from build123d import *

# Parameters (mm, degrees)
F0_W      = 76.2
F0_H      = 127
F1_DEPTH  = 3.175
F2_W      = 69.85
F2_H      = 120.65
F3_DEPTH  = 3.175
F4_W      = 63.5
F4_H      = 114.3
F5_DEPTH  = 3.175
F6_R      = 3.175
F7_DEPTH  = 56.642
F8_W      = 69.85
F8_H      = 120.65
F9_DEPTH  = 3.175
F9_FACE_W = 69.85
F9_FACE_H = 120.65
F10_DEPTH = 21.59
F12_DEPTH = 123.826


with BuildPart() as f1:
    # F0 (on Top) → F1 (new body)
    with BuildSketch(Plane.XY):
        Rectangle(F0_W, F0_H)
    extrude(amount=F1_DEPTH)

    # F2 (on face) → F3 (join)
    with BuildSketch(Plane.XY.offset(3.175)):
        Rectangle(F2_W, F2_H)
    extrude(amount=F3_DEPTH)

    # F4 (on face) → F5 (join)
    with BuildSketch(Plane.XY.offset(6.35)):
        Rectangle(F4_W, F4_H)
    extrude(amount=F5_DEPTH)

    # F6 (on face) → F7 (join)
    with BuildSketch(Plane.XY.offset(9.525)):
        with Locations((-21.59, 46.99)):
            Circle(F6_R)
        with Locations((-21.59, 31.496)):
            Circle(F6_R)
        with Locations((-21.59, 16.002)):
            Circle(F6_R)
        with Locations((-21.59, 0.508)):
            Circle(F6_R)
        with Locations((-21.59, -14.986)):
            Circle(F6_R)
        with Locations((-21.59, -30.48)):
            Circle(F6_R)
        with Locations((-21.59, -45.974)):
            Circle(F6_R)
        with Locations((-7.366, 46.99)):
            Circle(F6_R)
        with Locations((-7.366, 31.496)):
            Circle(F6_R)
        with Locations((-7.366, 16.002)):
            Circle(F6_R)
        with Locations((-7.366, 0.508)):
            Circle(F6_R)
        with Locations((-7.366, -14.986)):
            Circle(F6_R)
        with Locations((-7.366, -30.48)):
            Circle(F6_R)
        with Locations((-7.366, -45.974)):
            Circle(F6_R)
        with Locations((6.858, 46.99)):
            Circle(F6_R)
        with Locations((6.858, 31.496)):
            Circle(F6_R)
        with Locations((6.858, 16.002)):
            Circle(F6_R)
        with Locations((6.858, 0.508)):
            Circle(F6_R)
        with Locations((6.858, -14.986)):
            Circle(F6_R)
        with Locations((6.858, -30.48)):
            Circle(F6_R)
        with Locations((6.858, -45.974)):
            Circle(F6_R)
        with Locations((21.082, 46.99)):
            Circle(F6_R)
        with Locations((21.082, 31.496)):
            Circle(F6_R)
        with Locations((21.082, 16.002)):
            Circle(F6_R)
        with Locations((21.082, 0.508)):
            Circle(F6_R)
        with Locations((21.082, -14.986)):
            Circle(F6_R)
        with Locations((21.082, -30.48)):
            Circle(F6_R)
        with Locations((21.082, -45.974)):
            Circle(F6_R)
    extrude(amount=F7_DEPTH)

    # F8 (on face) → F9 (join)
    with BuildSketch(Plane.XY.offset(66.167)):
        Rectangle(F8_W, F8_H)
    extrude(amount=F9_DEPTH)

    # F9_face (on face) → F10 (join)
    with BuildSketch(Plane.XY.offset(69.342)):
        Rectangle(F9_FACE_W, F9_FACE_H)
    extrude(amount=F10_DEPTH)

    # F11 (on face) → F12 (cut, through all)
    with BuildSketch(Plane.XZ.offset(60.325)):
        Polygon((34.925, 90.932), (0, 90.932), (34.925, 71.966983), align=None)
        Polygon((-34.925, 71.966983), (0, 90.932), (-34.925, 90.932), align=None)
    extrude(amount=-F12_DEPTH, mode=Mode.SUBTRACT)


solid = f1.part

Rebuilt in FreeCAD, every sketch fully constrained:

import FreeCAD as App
import Part
import Sketcher

V = App.Vector
Q = App.Units.Quantity


def add_polygon(sketch, points):
    """Adds a closed chain of lines whose ends are joined by coincident constraints."""
    first, n = sketch.GeometryCount, len(points)
    for a, b in zip(points, points[1:] + points[:1]):
        sketch.addGeometry(Part.LineSegment(App.Vector(*a, 0), App.Vector(*b, 0)), False)
    for i in range(n):
        sketch.addConstraint(Sketcher.Constraint("Coincident", first + i, 2, first + (i + 1) % n, 1))

doc = App.newDocument("Part")
body = doc.addObject("PartDesign::Body", "Body")

sketch1 = body.newObject("Sketcher::SketchObject", "Sketch")
sketch1.AttachmentSupport = (doc.getObject("XY_Plane"), [""])
sketch1.MapMode = "FlatFace"
add_polygon(sketch1, [(-38.1, 63.5), (-38.1, -63.5), (38.1, -63.5), (38.1, 63.5)])
sketch1.addConstraint(Sketcher.Constraint("Vertical", 0))
sketch1.addConstraint(Sketcher.Constraint("Horizontal", 1))
sketch1.addConstraint(Sketcher.Constraint("Vertical", 2))
sketch1.addConstraint(Sketcher.Constraint("Horizontal", 3))
sketch1.addConstraint(Sketcher.Constraint("Symmetric", 0, 2, 2, 2, -1, 1))
sketch1.addConstraint(Sketcher.Constraint("DistanceX", 1, 1, 1, 2, Q("3 in")))
sketch1.addConstraint(Sketcher.Constraint("DistanceY", 0, 2, 0, 1, Q("5 in")))
pad1 = body.newObject("PartDesign::Pad", "Pad")
pad1.Profile = sketch1
pad1.Length = Q("0.125 in")

sketch2 = body.newObject("Sketcher::SketchObject", "Sketch001")
sketch2.AttachmentSupport = (doc.getObject("XY_Plane"), [""])
sketch2.MapMode = "FlatFace"
sketch2.AttachmentOffset = App.Placement(V(0, 0, 0.125 * 25.4), App.Rotation())
add_polygon(sketch2, [(-34.925, 60.325), (-34.925, -60.325), (34.925, -60.325), (34.925, 60.325)])
sketch2.addConstraint(Sketcher.Constraint("Vertical", 0))
sketch2.addConstraint(Sketcher.Constraint("Horizontal", 1))
sketch2.addConstraint(Sketcher.Constraint("Vertical", 2))
sketch2.addConstraint(Sketcher.Constraint("Horizontal", 3))
sketch2.addConstraint(Sketcher.Constraint("Symmetric", 0, 2, 2, 2, -1, 1))
sketch2.addConstraint(Sketcher.Constraint("DistanceX", 1, 1, 1, 2, Q("2.75 in")))
sketch2.addConstraint(Sketcher.Constraint("DistanceY", 0, 2, 0, 1, Q("4.75 in")))
pad2 = body.newObject("PartDesign::Pad", "Pad001")
pad2.Profile = sketch2
pad2.Length = Q("0.125 in")

sketch3 = body.newObject("Sketcher::SketchObject", "Sketch002")
sketch3.AttachmentSupport = (doc.getObject("XY_Plane"), [""])
sketch3.MapMode = "FlatFace"
sketch3.AttachmentOffset = App.Placement(V(0, 0, 0.25 * 25.4), App.Rotation())
add_polygon(sketch3, [(-31.75, 57.15), (-31.75, -57.15), (31.75, -57.15), (31.75, 57.15)])
sketch3.addConstraint(Sketcher.Constraint("Vertical", 0))
sketch3.addConstraint(Sketcher.Constraint("Horizontal", 1))
sketch3.addConstraint(Sketcher.Constraint("Vertical", 2))
sketch3.addConstraint(Sketcher.Constraint("Horizontal", 3))
sketch3.addConstraint(Sketcher.Constraint("Symmetric", 0, 2, 2, 2, -1, 1))
sketch3.addConstraint(Sketcher.Constraint("DistanceX", 1, 1, 1, 2, Q("2.5 in")))
sketch3.addConstraint(Sketcher.Constraint("DistanceY", 0, 2, 0, 1, Q("4.5 in")))
pad3 = body.newObject("PartDesign::Pad", "Pad002")
pad3.Profile = sketch3
pad3.Length = Q("0.125 in")

sketch4 = body.newObject("Sketcher::SketchObject", "Sketch003")
sketch4.AttachmentSupport = (doc.getObject("XY_Plane"), [""])
sketch4.MapMode = "FlatFace"
sketch4.AttachmentOffset = App.Placement(V(0, 0, 0.375 * 25.4), App.Rotation())
sketch4.addGeometry(Part.Circle(V(-21.59, 46.99, 0), V(0, 0, 1), 3.175), False)
sketch4.addGeometry(Part.Circle(V(-21.59, 31.496, 0), V(0, 0, 1), 3.175), False)
sketch4.addGeometry(Part.Circle(V(-21.59, 16.002, 0), V(0, 0, 1), 3.175), False)
sketch4.addGeometry(Part.Circle(V(-21.59, 0.508, 0), V(0, 0, 1), 3.175), False)
sketch4.addGeometry(Part.Circle(V(-21.59, -14.986, 0), V(0, 0, 1), 3.175), False)
sketch4.addGeometry(Part.Circle(V(-21.59, -30.48, 0), V(0, 0, 1), 3.175), False)
sketch4.addGeometry(Part.Circle(V(-21.59, -45.974, 0), V(0, 0, 1), 3.175), False)
sketch4.addGeometry(Part.Circle(V(-7.366, 46.99, 0), V(0, 0, 1), 3.175), False)
sketch4.addGeometry(Part.Circle(V(-7.366, 31.496, 0), V(0, 0, 1), 3.175), False)
sketch4.addGeometry(Part.Circle(V(-7.366, 16.002, 0), V(0, 0, 1), 3.175), False)
sketch4.addGeometry(Part.Circle(V(-7.366, 0.508, 0), V(0, 0, 1), 3.175), False)
sketch4.addGeometry(Part.Circle(V(-7.366, -14.986, 0), V(0, 0, 1), 3.175), False)
sketch4.addGeometry(Part.Circle(V(-7.366, -30.48, 0), V(0, 0, 1), 3.175), False)
sketch4.addGeometry(Part.Circle(V(-7.366, -45.974, 0), V(0, 0, 1), 3.175), False)
sketch4.addGeometry(Part.Circle(V(6.858, 46.99, 0), V(0, 0, 1), 3.175), False)
sketch4.addGeometry(Part.Circle(V(6.858, 31.496, 0), V(0, 0, 1), 3.175), False)
sketch4.addGeometry(Part.Circle(V(6.858, 16.002, 0), V(0, 0, 1), 3.175), False)
sketch4.addGeometry(Part.Circle(V(6.858, 0.508, 0), V(0, 0, 1), 3.175), False)
sketch4.addGeometry(Part.Circle(V(6.858, -14.986, 0), V(0, 0, 1), 3.175), False)
sketch4.addGeometry(Part.Circle(V(6.858, -30.48, 0), V(0, 0, 1), 3.175), False)
sketch4.addGeometry(Part.Circle(V(6.858, -45.974, 0), V(0, 0, 1), 3.175), False)
sketch4.addGeometry(Part.Circle(V(21.082, 46.99, 0), V(0, 0, 1), 3.175), False)
sketch4.addGeometry(Part.Circle(V(21.082, 31.496, 0), V(0, 0, 1), 3.175), False)
sketch4.addGeometry(Part.Circle(V(21.082, 16.002, 0), V(0, 0, 1), 3.175), False)
sketch4.addGeometry(Part.Circle(V(21.082, 0.508, 0), V(0, 0, 1), 3.175), False)
sketch4.addGeometry(Part.Circle(V(21.082, -14.986, 0), V(0, 0, 1), 3.175), False)
sketch4.addGeometry(Part.Circle(V(21.082, -30.48, 0), V(0, 0, 1), 3.175), False)
sketch4.addGeometry(Part.Circle(V(21.082, -45.974, 0), V(0, 0, 1), 3.175), False)
sketch4.addConstraint(Sketcher.Constraint("Equal", 0, 1))
sketch4.addConstraint(Sketcher.Constraint("Equal", 1, 2))
sketch4.addConstraint(Sketcher.Constraint("Equal", 2, 3))
sketch4.addConstraint(Sketcher.Constraint("Equal", 3, 4))
sketch4.addConstraint(Sketcher.Constraint("Equal", 4, 5))
sketch4.addConstraint(Sketcher.Constraint("Equal", 5, 6))
sketch4.addConstraint(Sketcher.Constraint("Equal", 6, 7))
sketch4.addConstraint(Sketcher.Constraint("Equal", 7, 8))
sketch4.addConstraint(Sketcher.Constraint("Equal", 8, 9))
sketch4.addConstraint(Sketcher.Constraint("Equal", 9, 10))
sketch4.addConstraint(Sketcher.Constraint("Equal", 10, 11))
sketch4.addConstraint(Sketcher.Constraint("Equal", 11, 12))
sketch4.addConstraint(Sketcher.Constraint("Equal", 12, 13))
sketch4.addConstraint(Sketcher.Constraint("Equal", 13, 14))
sketch4.addConstraint(Sketcher.Constraint("Equal", 14, 15))
sketch4.addConstraint(Sketcher.Constraint("Equal", 15, 16))
sketch4.addConstraint(Sketcher.Constraint("Equal", 16, 17))
sketch4.addConstraint(Sketcher.Constraint("Equal", 17, 18))
sketch4.addConstraint(Sketcher.Constraint("Equal", 18, 19))
sketch4.addConstraint(Sketcher.Constraint("Equal", 19, 20))
sketch4.addConstraint(Sketcher.Constraint("Equal", 20, 21))
sketch4.addConstraint(Sketcher.Constraint("Equal", 21, 22))
sketch4.addConstraint(Sketcher.Constraint("Equal", 22, 23))
sketch4.addConstraint(Sketcher.Constraint("Equal", 23, 24))
sketch4.addConstraint(Sketcher.Constraint("Equal", 24, 25))
sketch4.addConstraint(Sketcher.Constraint("Equal", 25, 26))
sketch4.addConstraint(Sketcher.Constraint("Equal", 26, 27))
sketch4.addConstraint(Sketcher.Constraint("Horizontal", 0, 3, 7, 3))
sketch4.addConstraint(Sketcher.Constraint("Horizontal", 1, 3, 8, 3))
sketch4.addConstraint(Sketcher.Constraint("Horizontal", 2, 3, 9, 3))
sketch4.addConstraint(Sketcher.Constraint("Horizontal", 3, 3, 10, 3))
sketch4.addConstraint(Sketcher.Constraint("Horizontal", 4, 3, 11, 3))
sketch4.addConstraint(Sketcher.Constraint("Horizontal", 5, 3, 12, 3))
sketch4.addConstraint(Sketcher.Constraint("Horizontal", 6, 3, 13, 3))
sketch4.addConstraint(Sketcher.Constraint("Horizontal", 7, 3, 14, 3))
sketch4.addConstraint(Sketcher.Constraint("Horizontal", 8, 3, 15, 3))
sketch4.addConstraint(Sketcher.Constraint("Horizontal", 9, 3, 16, 3))
sketch4.addConstraint(Sketcher.Constraint("Horizontal", 10, 3, 17, 3))
sketch4.addConstraint(Sketcher.Constraint("Horizontal", 11, 3, 18, 3))
sketch4.addConstraint(Sketcher.Constraint("Horizontal", 12, 3, 19, 3))
sketch4.addConstraint(Sketcher.Constraint("Horizontal", 13, 3, 20, 3))
sketch4.addConstraint(Sketcher.Constraint("Horizontal", 14, 3, 21, 3))
sketch4.addConstraint(Sketcher.Constraint("Horizontal", 15, 3, 22, 3))
sketch4.addConstraint(Sketcher.Constraint("Horizontal", 16, 3, 23, 3))
sketch4.addConstraint(Sketcher.Constraint("Horizontal", 17, 3, 24, 3))
sketch4.addConstraint(Sketcher.Constraint("Horizontal", 18, 3, 25, 3))
sketch4.addConstraint(Sketcher.Constraint("Horizontal", 19, 3, 26, 3))
sketch4.addConstraint(Sketcher.Constraint("Horizontal", 20, 3, 27, 3))
sketch4.addConstraint(Sketcher.Constraint("Vertical", 0, 3, 1, 3))
sketch4.addConstraint(Sketcher.Constraint("Vertical", 1, 3, 2, 3))
sketch4.addConstraint(Sketcher.Constraint("Vertical", 2, 3, 3, 3))
sketch4.addConstraint(Sketcher.Constraint("Vertical", 3, 3, 4, 3))
sketch4.addConstraint(Sketcher.Constraint("Vertical", 4, 3, 5, 3))
sketch4.addConstraint(Sketcher.Constraint("Vertical", 5, 3, 6, 3))
sketch4.addConstraint(Sketcher.Constraint("Vertical", 7, 3, 8, 3))
sketch4.addConstraint(Sketcher.Constraint("Vertical", 8, 3, 9, 3))
sketch4.addConstraint(Sketcher.Constraint("Vertical", 9, 3, 10, 3))
sketch4.addConstraint(Sketcher.Constraint("Vertical", 10, 3, 11, 3))
sketch4.addConstraint(Sketcher.Constraint("Vertical", 11, 3, 12, 3))
sketch4.addConstraint(Sketcher.Constraint("Vertical", 12, 3, 13, 3))
sketch4.addConstraint(Sketcher.Constraint("Vertical", 14, 3, 15, 3))
sketch4.addConstraint(Sketcher.Constraint("Vertical", 15, 3, 16, 3))
sketch4.addConstraint(Sketcher.Constraint("Vertical", 16, 3, 17, 3))
sketch4.addConstraint(Sketcher.Constraint("Vertical", 17, 3, 18, 3))
sketch4.addConstraint(Sketcher.Constraint("Vertical", 18, 3, 19, 3))
sketch4.addConstraint(Sketcher.Constraint("Vertical", 19, 3, 20, 3))
sketch4.addConstraint(Sketcher.Constraint("Vertical", 21, 3, 22, 3))
sketch4.addConstraint(Sketcher.Constraint("Vertical", 22, 3, 23, 3))
sketch4.addConstraint(Sketcher.Constraint("Vertical", 23, 3, 24, 3))
sketch4.addConstraint(Sketcher.Constraint("Vertical", 24, 3, 25, 3))
sketch4.addConstraint(Sketcher.Constraint("Vertical", 25, 3, 26, 3))
sketch4.addConstraint(Sketcher.Constraint("Vertical", 26, 3, 27, 3))
sketch4.addConstraint(Sketcher.Constraint("Diameter", 0, Q("0.25 in")))
sketch4.addConstraint(Sketcher.Constraint("DistanceY", 5, 3, -1, 1, Q("1.2 in")))
sketch4.addConstraint(Sketcher.Constraint("DistanceX", 0, 3, -1, 1, Q("0.85 in")))
sketch4.addConstraint(Sketcher.Constraint("DistanceY", -1, 1, 0, 3, Q("1.85 in")))
sketch4.addConstraint(Sketcher.Constraint("DistanceY", -1, 1, 1, 3, Q("1.24 in")))
sketch4.addConstraint(Sketcher.Constraint("DistanceY", -1, 1, 2, 3, Q("0.63 in")))
sketch4.addConstraint(Sketcher.Constraint("DistanceY", -1, 1, 3, 3, Q("0.02 in")))
sketch4.addConstraint(Sketcher.Constraint("DistanceY", 4, 3, -1, 1, Q("0.59 in")))
sketch4.addConstraint(Sketcher.Constraint("DistanceY", 6, 3, -1, 1, Q("1.81 in")))
sketch4.addConstraint(Sketcher.Constraint("DistanceX", 7, 3, -1, 1, Q("0.29 in")))
sketch4.addConstraint(Sketcher.Constraint("DistanceX", -1, 1, 14, 3, Q("0.27 in")))
sketch4.addConstraint(Sketcher.Constraint("DistanceX", -1, 1, 21, 3, Q("0.83 in")))
pad4 = body.newObject("PartDesign::Pad", "Pad003")
pad4.Profile = sketch4
pad4.Length = Q("2.23 in")

sketch5 = body.newObject("Sketcher::SketchObject", "Sketch004")
sketch5.AttachmentSupport = (doc.getObject("XY_Plane"), [""])
sketch5.MapMode = "FlatFace"
sketch5.AttachmentOffset = App.Placement(V(0, 0, 2.605 * 25.4), App.Rotation())
add_polygon(sketch5, [(-34.925, 60.325), (-34.925, -60.325), (34.925, -60.325), (34.925, 60.325)])
sketch5.addConstraint(Sketcher.Constraint("Vertical", 0))
sketch5.addConstraint(Sketcher.Constraint("Horizontal", 1))
sketch5.addConstraint(Sketcher.Constraint("Vertical", 2))
sketch5.addConstraint(Sketcher.Constraint("Horizontal", 3))
sketch5.addConstraint(Sketcher.Constraint("Symmetric", 0, 2, 2, 2, -1, 1))
sketch5.addConstraint(Sketcher.Constraint("DistanceX", 1, 1, 1, 2, Q("2.75 in")))
sketch5.addConstraint(Sketcher.Constraint("DistanceY", 0, 2, 0, 1, Q("4.75 in")))
pad5 = body.newObject("PartDesign::Pad", "Pad004")
pad5.Profile = sketch5
pad5.Length = Q("0.125 in")

sketch6 = body.newObject("Sketcher::SketchObject", "Sketch005")
sketch6.AttachmentSupport = (doc.getObject("XY_Plane"), [""])
sketch6.MapMode = "FlatFace"
sketch6.AttachmentOffset = App.Placement(V(0, 0, 2.73 * 25.4), App.Rotation())
add_polygon(sketch6, [(-34.925, 60.325), (-34.925, -60.325), (34.925, -60.325), (34.925, 60.325)])
sketch6.addConstraint(Sketcher.Constraint("Vertical", 0))
sketch6.addConstraint(Sketcher.Constraint("Horizontal", 1))
sketch6.addConstraint(Sketcher.Constraint("Vertical", 2))
sketch6.addConstraint(Sketcher.Constraint("Horizontal", 3))
sketch6.addConstraint(Sketcher.Constraint("Symmetric", 0, 2, 2, 2, -1, 1))
sketch6.addConstraint(Sketcher.Constraint("DistanceX", 1, 1, 1, 2, Q("2.75 in")))
sketch6.addConstraint(Sketcher.Constraint("DistanceY", 0, 2, 0, 1, Q("4.75 in")))
pad6 = body.newObject("PartDesign::Pad", "Pad005")
pad6.Profile = sketch6
pad6.Length = Q("0.85 in")

sketch7 = body.newObject("Sketcher::SketchObject", "Sketch006")
sketch7.AttachmentSupport = (doc.getObject("XZ_Plane"), [""])
sketch7.MapMode = "FlatFace"
sketch7.AttachmentOffset = App.Placement(V(0, 0, 2.375 * 25.4), App.Rotation())
add_polygon(sketch7, [(34.925, 90.932), (0, 90.932), (34.925, 71.966983)])
add_polygon(sketch7, [(-34.925, 71.966983), (0, 90.932), (-34.925, 90.932)])
sketch7.addConstraint(Sketcher.Constraint("Horizontal", 0))
sketch7.addConstraint(Sketcher.Constraint("Vertical", 2))
sketch7.addConstraint(Sketcher.Constraint("Horizontal", 4))
sketch7.addConstraint(Sketcher.Constraint("Vertical", 5))
sketch7.addConstraint(Sketcher.Constraint("Coincident", 3, 2, 0, 2))
sketch7.addConstraint(Sketcher.Constraint("Symmetric", 1, 2, 5, 2, -2))
sketch7.addConstraint(Sketcher.Constraint("PointOnObject", 0, 2, -2))
sketch7.addConstraint(Sketcher.Constraint("DistanceX", 0, 2, 0, 1, Q("1.375 in")))
sketch7.addConstraint(Sketcher.Constraint("DistanceY", -1, 1, 0, 2, Q("3.58 in")))
sketch7.addConstraint(Sketcher.Constraint("Distance", 1, 39.742012))
pocket1 = body.newObject("PartDesign::Pocket", "Pocket")
pocket1.Profile = sketch7
pocket1.Type = "ThroughAll"

doc.recompute()
